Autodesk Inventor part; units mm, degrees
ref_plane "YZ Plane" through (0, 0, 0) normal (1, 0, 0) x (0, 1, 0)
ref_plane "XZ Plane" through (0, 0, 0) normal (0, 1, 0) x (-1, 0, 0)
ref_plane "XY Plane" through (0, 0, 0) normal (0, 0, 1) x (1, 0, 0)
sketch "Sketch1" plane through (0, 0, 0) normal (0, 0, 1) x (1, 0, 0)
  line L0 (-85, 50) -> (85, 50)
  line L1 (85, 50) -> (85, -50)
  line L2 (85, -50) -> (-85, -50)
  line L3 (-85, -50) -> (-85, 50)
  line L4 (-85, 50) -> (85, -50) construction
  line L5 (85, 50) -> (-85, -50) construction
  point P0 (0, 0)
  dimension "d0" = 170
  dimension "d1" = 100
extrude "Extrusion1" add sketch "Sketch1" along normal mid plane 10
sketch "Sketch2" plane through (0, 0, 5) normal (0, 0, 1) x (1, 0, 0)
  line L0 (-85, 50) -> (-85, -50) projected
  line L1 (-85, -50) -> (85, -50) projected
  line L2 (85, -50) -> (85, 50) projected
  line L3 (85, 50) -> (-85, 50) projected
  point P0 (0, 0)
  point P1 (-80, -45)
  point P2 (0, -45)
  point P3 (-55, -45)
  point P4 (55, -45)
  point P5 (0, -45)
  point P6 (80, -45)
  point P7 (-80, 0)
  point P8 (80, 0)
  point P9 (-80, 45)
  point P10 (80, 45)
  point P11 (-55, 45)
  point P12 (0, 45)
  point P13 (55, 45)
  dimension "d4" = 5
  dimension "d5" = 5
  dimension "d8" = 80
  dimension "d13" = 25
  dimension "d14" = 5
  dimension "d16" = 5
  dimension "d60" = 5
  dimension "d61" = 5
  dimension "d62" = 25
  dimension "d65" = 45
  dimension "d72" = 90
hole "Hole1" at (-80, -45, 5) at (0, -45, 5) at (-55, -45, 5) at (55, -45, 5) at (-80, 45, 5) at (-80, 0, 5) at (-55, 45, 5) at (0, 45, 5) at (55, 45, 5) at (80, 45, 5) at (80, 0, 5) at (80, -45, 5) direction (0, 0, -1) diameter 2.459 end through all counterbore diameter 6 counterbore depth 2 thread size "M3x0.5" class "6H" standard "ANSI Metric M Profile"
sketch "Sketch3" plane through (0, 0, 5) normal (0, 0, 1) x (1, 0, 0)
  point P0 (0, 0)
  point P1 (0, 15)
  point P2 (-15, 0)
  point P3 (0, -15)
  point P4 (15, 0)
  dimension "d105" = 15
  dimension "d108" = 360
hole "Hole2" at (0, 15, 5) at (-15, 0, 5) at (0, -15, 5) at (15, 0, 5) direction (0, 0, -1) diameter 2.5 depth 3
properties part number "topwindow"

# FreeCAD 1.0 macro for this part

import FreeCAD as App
import Part
import Sketcher


def add_polygon(sketch, points):
    """Adds a closed chain of lines whose ends are joined by coincident constraints."""
    first, n = sketch.GeometryCount, len(points)
    for a, b in zip(points, points[1:] + points[:1]):
        sketch.addGeometry(Part.LineSegment(App.Vector(*a, 0), App.Vector(*b, 0)), False)
    for i in range(n):
        sketch.addConstraint(Sketcher.Constraint("Coincident", first + i, 2, first + (i + 1) % n, 1))

doc = App.newDocument("Part")
params = doc.addObject("Spreadsheet::Sheet", "Params")
for row, (alias, value) in enumerate([
    ("sketch1_width", "170 mm"),
    ("sketch1_height", "100 mm"),
    ("pad1_length", "10 mm"),
    ("hole_diameter", "2.459 mm"),
    ("hole_cbore_diameter", "6 mm"),
    ("hole_cbore_depth", "2 mm"),
    ("sketch3_diameter", "2.5 mm"),
    ("hole2_diameter", "2.5 mm"),
    ("hole2_depth", "3 mm"),
], start=1):
    params.set(f"A{row}", alias)
    params.set(f"B{row}", "=" + value)
    params.setAlias(f"B{row}", alias)

body = doc.addObject("PartDesign::Body", "Body")

# Sketch on XY plane
sketch1 = body.newObject("Sketcher::SketchObject", "Sketch")
sketch1.AttachmentSupport = (doc.getObject("XY_Plane"), [""])
sketch1.MapMode = "FlatFace"
add_polygon(sketch1, [(85, 50), (-85, 50), (-85, -50), (85, -50)])  # lines 0-3
sketch1.addConstraint([
    Sketcher.Constraint("Horizontal", 0),
    Sketcher.Constraint("Vertical", 1),
    Sketcher.Constraint("Horizontal", 2),
    Sketcher.Constraint("Vertical", 3),
    Sketcher.Constraint("Symmetric", 0, 2, 2, 2, -1, 1),
    Sketcher.Constraint("DistanceX", 0, 2, 0, 1, 170.0),
    Sketcher.Constraint("DistanceY", 1, 2, 1, 1, 100.0),
])
sketch1.setExpression("Constraints[9]", "Params.sketch1_width")
sketch1.setExpression("Constraints[10]", "Params.sketch1_height")
pad1 = body.newObject("PartDesign::Pad", "Pad")
pad1.Profile = sketch1
pad1.setExpression("Length", "Params.pad1_length")
pad1.Midplane = True

# Sketch on XY plane
sketch2 = body.newObject("Sketcher::SketchObject", "Sketch001")
sketch2.AttachmentSupport = (doc.getObject("XY_Plane"), [""])
sketch2.MapMode = "FlatFace"
sketch2.AttachmentOffset = App.Placement(App.Vector(0, 0, 5), App.Rotation())
sketch2.addGeometry([
    Part.Circle(App.Vector(-80, -45, 0), App.Vector(0, 0, 1), 1.2295),  # 0
    Part.Circle(App.Vector(0, -45, 0), App.Vector(0, 0, 1), 1.2295),  # 1
    Part.Circle(App.Vector(-55, -45, 0), App.Vector(0, 0, 1), 1.2295),  # 2
    Part.Circle(App.Vector(55, -45, 0), App.Vector(0, 0, 1), 1.2295),  # 3
    Part.Circle(App.Vector(-80, 45, 0), App.Vector(0, 0, 1), 1.2295),  # 4
    Part.Circle(App.Vector(-80, 0, 0), App.Vector(0, 0, 1), 1.2295),  # 5
    Part.Circle(App.Vector(-55, 45, 0), App.Vector(0, 0, 1), 1.2295),  # 6
    Part.Circle(App.Vector(0, 45, 0), App.Vector(0, 0, 1), 1.2295),  # 7
    Part.Circle(App.Vector(55, 45, 0), App.Vector(0, 0, 1), 1.2295),  # 8
    Part.Circle(App.Vector(80, 45, 0), App.Vector(0, 0, 1), 1.2295),  # 9
    Part.Circle(App.Vector(80, 0, 0), App.Vector(0, 0, 1), 1.2295),  # 10
    Part.Circle(App.Vector(80, -45, 0), App.Vector(0, 0, 1), 1.2295),  # 11
], False)
sketch2.addConstraint([
    Sketcher.Constraint("Equal", 0, 1),
    Sketcher.Constraint("Equal", 1, 2),
    Sketcher.Constraint("Equal", 2, 3),
    Sketcher.Constraint("Equal", 3, 4),
    Sketcher.Constraint("Equal", 4, 5),
    Sketcher.Constraint("Equal", 5, 6),
    Sketcher.Constraint("Equal", 6, 7),
    Sketcher.Constraint("Equal", 7, 8),
    Sketcher.Constraint("Equal", 8, 9),
    Sketcher.Constraint("Equal", 9, 10),
    Sketcher.Constraint("Equal", 10, 11),
    Sketcher.Constraint("Symmetric", 3, 3, 6, 3, -1, 1),
    Sketcher.Constraint("Symmetric", 1, 3, 7, 3, -1, 1),
    Sketcher.Constraint("Symmetric", 2, 3, 8, 3, -1, 1),
    Sketcher.Constraint("Symmetric", 0, 3, 9, 3, -1, 1),
    Sketcher.Constraint("Symmetric", 5, 3, 10, 3, -1, 1),
    Sketcher.Constraint("Symmetric", 4, 3, 11, 3, -1, 1),
    Sketcher.Constraint("Symmetric", 2, 3, 3, 3, -2),
    Sketcher.Constraint("Symmetric", 4, 3, 9, 3, -2),
    Sketcher.Constraint("PointOnObject", 1, 3, -2),
    Sketcher.Constraint("PointOnObject", 5, 3, -1),
    Sketcher.Constraint("Horizontal", 0, 3, 1, 3),
    Sketcher.Constraint("Horizontal", 1, 3, 2, 3),
    Sketcher.Constraint("Vertical", 4, 3, 5, 3),
    Sketcher.Constraint("Diameter", 0, 2.459),
    Sketcher.Constraint("DistanceX", 0, 3, -1, 1, 80.0),
    Sketcher.Constraint("DistanceY", 0, 3, -1, 1, 45.0),
    Sketcher.Constraint("DistanceX", 2, 3, -1, 1, 55.0),
])
doc.recompute()
hole = body.newObject("PartDesign::Hole", "Hole")
hole.Profile = sketch2
hole.ThreadType = "None"
hole.setExpression("Diameter", "Params.hole_diameter")
hole.DepthType = "ThroughAll"
hole.HoleCutType = "Counterbore"
hole.setExpression("HoleCutDiameter", "Params.hole_cbore_diameter")
hole.setExpression("HoleCutDepth", "Params.hole_cbore_depth")

# Sketch on XY plane
sketch3 = body.newObject("Sketcher::SketchObject", "Sketch002")
sketch3.AttachmentSupport = (doc.getObject("XY_Plane"), [""])
sketch3.MapMode = "FlatFace"
sketch3.AttachmentOffset = App.Placement(App.Vector(0, 0, 5), App.Rotation())
sketch3.addGeometry([
    Part.Circle(App.Vector(0, 15, 0), App.Vector(0, 0, 1), 1.25),
    Part.Circle(App.Vector(-15, 0, 0), App.Vector(0, 0, 1), 1.25),
    Part.Circle(App.Vector(0, -15, 0), App.Vector(0, 0, 1), 1.25),
    Part.Circle(App.Vector(15, 0, 0), App.Vector(0, 0, 1), 1.25),
], False)
sketch3.addConstraint([
    Sketcher.Constraint("Equal", 0, 1),
    Sketcher.Constraint("Equal", 1, 2),
    Sketcher.Constraint("Equal", 2, 3),
    Sketcher.Constraint("Symmetric", 0, 3, 2, 3, -1, 1),
    Sketcher.Constraint("Symmetric", 1, 3, 3, 3, -1, 1),
    Sketcher.Constraint("PointOnObject", 0, 3, -2),
    Sketcher.Constraint("PointOnObject", 1, 3, -1),
    Sketcher.Constraint("Diameter", 0, 2.5),
    Sketcher.Constraint("DistanceY", -1, 1, 0, 3, 15.0),
    Sketcher.Constraint("DistanceX", 1, 3, -1, 1, 15.0),
])
sketch3.setExpression("Constraints[7]", "Params.sketch3_diameter")
doc.recompute()
hole2 = body.newObject("PartDesign::Hole", "Hole001")
hole2.Profile = sketch3
hole2.ThreadType = "None"
hole2.setExpression("Diameter", "Params.hole2_diameter")
hole2.DepthType = "Dimension"
hole2.setExpression("Depth", "Params.hole2_depth")
hole2.DrillPoint = "Flat"

doc.recompute()
